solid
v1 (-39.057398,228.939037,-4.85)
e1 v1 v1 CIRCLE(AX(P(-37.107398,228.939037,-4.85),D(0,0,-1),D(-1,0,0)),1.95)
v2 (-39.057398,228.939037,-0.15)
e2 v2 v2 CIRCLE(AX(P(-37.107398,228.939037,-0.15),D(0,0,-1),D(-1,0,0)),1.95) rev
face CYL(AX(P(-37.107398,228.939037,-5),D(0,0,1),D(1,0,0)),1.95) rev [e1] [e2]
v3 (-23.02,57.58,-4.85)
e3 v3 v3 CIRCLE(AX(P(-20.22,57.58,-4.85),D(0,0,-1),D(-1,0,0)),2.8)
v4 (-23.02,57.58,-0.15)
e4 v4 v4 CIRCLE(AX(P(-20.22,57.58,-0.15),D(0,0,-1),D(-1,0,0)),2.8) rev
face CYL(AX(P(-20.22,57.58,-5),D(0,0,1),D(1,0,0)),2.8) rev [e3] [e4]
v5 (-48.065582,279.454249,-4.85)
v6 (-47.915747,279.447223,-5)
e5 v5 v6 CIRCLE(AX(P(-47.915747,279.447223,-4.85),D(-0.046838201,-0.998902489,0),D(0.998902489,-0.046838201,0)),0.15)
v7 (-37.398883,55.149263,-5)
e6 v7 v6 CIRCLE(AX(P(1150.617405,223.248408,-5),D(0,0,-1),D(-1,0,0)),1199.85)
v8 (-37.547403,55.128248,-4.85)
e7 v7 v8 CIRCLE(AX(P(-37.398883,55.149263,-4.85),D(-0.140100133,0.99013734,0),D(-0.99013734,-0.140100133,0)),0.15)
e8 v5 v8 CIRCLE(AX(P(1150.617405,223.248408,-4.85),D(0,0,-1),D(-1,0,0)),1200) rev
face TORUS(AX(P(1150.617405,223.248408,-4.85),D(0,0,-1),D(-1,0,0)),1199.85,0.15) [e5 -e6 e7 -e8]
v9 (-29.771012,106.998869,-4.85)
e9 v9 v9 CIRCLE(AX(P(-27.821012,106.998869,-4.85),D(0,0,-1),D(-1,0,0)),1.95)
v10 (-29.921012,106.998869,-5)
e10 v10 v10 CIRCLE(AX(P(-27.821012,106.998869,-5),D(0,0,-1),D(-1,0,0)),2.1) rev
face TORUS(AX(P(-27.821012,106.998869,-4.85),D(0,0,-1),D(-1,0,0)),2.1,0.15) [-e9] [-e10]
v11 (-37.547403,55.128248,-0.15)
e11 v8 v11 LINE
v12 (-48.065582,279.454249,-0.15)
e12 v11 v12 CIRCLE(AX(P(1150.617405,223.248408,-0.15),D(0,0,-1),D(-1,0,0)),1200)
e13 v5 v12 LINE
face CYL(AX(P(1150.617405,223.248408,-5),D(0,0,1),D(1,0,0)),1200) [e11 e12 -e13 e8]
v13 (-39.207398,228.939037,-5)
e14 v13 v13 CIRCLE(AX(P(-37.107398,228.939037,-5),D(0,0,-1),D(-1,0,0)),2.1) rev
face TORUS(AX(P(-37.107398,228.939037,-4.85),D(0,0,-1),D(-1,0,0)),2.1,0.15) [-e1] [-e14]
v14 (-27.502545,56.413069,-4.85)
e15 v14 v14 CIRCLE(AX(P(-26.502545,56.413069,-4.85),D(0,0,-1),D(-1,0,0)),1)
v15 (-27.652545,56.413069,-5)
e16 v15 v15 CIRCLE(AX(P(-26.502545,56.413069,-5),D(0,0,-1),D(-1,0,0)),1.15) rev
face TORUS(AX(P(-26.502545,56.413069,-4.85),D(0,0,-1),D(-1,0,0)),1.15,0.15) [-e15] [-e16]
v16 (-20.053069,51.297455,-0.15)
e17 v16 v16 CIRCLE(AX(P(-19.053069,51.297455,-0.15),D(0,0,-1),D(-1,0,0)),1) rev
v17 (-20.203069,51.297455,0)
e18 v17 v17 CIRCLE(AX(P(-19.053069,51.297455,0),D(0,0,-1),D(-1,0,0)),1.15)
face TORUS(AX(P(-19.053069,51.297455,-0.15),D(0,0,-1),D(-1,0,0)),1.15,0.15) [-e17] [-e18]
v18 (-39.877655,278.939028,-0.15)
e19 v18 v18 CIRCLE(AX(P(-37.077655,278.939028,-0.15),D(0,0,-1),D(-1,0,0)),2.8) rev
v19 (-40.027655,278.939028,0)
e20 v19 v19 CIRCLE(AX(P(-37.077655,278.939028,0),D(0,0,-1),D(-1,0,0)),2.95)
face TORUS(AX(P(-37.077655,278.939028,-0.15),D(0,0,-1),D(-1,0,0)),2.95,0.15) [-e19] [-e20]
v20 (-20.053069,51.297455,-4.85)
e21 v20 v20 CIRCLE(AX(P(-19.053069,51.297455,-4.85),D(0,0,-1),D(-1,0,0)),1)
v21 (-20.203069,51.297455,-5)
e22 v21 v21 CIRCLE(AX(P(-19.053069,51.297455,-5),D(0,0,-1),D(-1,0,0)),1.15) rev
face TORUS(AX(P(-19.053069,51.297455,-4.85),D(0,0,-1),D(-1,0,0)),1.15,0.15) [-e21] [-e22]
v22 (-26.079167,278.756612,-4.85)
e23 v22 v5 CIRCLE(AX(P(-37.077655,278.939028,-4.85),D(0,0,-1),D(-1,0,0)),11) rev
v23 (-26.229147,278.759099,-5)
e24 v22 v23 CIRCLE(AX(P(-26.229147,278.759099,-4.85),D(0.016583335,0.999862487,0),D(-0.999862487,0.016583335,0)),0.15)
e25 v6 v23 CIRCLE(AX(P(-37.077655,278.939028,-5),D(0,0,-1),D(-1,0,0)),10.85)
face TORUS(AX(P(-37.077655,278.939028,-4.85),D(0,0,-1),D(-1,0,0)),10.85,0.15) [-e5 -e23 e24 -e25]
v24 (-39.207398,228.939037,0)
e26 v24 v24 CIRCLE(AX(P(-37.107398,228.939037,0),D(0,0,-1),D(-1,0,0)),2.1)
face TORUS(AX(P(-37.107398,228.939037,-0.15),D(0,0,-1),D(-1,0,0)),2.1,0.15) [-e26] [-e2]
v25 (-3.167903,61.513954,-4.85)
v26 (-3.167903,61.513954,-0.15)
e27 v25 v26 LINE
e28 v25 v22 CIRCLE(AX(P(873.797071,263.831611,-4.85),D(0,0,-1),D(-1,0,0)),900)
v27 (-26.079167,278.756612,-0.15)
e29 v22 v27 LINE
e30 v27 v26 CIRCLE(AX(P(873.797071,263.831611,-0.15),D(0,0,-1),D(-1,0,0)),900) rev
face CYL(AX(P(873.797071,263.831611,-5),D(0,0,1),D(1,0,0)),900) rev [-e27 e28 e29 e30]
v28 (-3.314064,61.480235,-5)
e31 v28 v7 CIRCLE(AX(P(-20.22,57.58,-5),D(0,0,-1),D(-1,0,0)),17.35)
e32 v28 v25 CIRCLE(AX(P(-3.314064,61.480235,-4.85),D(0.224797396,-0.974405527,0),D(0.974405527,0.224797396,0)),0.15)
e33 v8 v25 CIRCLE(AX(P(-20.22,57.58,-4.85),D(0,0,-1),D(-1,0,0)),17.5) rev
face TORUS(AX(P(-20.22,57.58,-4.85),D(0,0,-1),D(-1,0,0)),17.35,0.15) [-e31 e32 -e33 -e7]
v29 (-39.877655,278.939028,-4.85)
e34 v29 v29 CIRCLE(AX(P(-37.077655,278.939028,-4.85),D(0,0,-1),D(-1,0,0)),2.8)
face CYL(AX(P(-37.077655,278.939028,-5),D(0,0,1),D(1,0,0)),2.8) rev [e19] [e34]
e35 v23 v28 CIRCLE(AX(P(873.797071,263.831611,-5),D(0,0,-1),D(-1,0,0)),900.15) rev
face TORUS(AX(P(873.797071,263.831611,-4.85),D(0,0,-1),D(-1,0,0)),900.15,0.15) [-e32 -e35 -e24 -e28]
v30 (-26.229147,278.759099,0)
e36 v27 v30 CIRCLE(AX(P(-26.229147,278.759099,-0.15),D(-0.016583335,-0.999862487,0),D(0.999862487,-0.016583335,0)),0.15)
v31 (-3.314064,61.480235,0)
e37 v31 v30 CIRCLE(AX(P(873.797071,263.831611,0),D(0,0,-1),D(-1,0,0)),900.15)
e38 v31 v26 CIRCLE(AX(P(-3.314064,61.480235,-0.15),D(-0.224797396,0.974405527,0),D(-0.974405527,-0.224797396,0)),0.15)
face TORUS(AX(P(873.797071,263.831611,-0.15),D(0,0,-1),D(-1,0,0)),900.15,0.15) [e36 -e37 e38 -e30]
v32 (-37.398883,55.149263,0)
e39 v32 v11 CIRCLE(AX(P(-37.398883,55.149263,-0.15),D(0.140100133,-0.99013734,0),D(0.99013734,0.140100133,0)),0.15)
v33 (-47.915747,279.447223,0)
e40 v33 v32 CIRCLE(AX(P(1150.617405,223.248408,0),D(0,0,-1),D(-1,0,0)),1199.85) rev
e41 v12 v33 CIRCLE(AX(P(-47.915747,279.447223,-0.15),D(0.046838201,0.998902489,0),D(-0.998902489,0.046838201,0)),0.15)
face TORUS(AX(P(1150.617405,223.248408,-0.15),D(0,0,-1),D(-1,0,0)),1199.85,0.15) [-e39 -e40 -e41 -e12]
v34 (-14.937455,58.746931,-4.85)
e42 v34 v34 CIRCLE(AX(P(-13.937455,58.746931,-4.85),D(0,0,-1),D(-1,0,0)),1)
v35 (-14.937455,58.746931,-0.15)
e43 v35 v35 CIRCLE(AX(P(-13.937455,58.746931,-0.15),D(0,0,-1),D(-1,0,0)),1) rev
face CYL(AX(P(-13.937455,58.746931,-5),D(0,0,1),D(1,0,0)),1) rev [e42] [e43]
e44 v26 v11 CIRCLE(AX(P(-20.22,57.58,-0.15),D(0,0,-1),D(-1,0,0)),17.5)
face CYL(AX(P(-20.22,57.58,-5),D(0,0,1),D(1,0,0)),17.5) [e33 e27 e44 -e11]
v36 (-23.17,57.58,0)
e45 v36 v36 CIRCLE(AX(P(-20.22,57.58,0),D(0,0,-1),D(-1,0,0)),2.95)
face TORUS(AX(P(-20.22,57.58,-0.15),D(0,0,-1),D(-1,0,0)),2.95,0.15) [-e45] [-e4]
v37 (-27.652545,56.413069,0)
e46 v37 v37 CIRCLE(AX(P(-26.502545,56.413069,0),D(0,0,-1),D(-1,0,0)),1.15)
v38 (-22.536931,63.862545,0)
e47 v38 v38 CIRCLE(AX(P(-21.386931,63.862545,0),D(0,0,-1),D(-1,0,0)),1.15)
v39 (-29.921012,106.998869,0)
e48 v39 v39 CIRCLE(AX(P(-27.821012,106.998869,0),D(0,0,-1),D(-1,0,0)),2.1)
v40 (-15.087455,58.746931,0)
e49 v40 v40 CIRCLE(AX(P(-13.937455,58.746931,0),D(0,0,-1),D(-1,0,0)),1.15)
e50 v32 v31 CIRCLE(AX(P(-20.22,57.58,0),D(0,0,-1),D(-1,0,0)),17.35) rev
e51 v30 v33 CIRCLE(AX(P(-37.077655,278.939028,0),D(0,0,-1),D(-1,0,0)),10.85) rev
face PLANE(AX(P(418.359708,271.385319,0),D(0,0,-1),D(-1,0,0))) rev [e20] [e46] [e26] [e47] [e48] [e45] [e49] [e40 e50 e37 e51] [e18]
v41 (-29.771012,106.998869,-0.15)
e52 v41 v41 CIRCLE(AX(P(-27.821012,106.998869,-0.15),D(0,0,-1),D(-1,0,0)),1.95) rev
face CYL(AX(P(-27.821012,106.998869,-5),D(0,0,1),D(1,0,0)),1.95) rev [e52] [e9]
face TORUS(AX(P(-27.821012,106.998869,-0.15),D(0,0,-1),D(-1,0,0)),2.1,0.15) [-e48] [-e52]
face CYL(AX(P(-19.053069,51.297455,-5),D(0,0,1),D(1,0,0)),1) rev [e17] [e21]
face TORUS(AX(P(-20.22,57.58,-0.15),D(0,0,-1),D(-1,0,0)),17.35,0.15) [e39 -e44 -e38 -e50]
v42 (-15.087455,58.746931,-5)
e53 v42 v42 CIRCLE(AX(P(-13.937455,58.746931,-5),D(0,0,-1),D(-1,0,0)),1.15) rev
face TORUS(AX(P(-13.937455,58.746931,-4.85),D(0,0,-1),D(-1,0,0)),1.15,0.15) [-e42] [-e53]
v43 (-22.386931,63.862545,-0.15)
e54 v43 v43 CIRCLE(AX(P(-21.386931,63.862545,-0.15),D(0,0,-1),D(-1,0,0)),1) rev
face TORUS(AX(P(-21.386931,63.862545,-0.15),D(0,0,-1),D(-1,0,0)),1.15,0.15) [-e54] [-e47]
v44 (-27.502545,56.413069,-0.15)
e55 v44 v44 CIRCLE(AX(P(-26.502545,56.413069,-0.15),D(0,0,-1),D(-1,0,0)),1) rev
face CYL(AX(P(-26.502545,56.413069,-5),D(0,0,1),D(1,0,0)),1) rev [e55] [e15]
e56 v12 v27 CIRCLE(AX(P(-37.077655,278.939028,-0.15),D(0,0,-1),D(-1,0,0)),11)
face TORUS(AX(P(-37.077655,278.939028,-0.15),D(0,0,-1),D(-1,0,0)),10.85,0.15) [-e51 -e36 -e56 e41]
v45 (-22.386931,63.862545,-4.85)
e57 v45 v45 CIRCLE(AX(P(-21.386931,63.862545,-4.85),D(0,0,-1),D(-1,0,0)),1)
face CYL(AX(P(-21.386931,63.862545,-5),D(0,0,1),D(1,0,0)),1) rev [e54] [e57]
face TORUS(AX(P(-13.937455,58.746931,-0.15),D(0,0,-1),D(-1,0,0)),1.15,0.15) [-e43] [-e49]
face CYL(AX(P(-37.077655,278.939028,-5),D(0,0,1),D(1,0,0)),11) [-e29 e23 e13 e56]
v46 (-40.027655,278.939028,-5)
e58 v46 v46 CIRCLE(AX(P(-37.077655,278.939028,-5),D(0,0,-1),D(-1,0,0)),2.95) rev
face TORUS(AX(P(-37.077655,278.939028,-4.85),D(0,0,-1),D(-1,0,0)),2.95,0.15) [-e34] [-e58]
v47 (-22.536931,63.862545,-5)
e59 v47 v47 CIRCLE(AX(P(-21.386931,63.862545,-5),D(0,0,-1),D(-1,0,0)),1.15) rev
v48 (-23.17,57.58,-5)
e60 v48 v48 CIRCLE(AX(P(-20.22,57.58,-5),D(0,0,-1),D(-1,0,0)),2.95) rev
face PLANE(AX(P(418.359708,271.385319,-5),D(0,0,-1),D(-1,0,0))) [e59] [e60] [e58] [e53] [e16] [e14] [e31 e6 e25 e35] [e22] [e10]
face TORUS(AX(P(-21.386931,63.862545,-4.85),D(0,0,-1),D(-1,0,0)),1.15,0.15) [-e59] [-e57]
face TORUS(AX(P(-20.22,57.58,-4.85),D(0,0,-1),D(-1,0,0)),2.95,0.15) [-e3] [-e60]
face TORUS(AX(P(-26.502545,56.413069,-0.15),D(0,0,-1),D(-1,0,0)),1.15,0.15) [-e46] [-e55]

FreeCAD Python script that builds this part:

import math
import FreeCAD as App
import Part
import Sketcher
from FreeCAD import Vector


def edges_at(feature, points):
    """Names of the edges that pass closest to the given points."""
    edges = feature.Shape.Edges
    near = lambda p: min(range(len(edges)), key=lambda i: edges[i].distToShape(Part.Vertex(*p))[0])
    return sorted({f"Edge{near(p) + 1}" for p in points})

doc = App.newDocument("Part")
body = doc.addObject("PartDesign::Body", "Body")

# Sketch on XY plane
sketch1 = body.newObject("Sketcher::SketchObject", "Sketch")
sketch1.AttachmentSupport = (doc.getObject("XY_Plane"), [""])
sketch1.MapMode = "FlatFace"
sketch1.addGeometry(Part.ArcOfCircle(Part.Circle(Vector(873.8, 263.8, 0), Vector(0, 0, 1), 900), math.radians(179.05), math.radians(192.99)), False)
sketch1.addGeometry(Part.ArcOfCircle(Part.Circle(Vector(-37.1, 278.9, 0), Vector(0, 0, 1), 11), math.radians(-1), math.radians(177)), False)
sketch1.addGeometry(Part.ArcOfCircle(Part.Circle(Vector(1150.6, 223.2, 0), Vector(0, 0, 1), 1200), math.radians(177.32), math.radians(188.05)), False)
sketch1.addGeometry(Part.ArcOfCircle(Part.Circle(Vector(-20.2, 57.6, 0), Vector(0, 0, 1), 17.5), math.radians(-172), math.radians(13)), False)
sketch1.addGeometry(Part.Circle(Vector(-13.9, 58.7, 0), Vector(0, 0, 1), 1), False)
sketch1.addGeometry(Part.Circle(Vector(-19.1, 51.3, 0), Vector(0, 0, 1), 1), False)
sketch1.addGeometry(Part.Circle(Vector(-20.2, 57.6, 0), Vector(0, 0, 1), 2.8), False)
sketch1.addGeometry(Part.Circle(Vector(-21.4, 63.9, 0), Vector(0, 0, 1), 1), False)
sketch1.addGeometry(Part.Circle(Vector(-26.5, 56.4, 0), Vector(0, 0, 1), 1), False)
sketch1.addGeometry(Part.Circle(Vector(-27.8, 107, 0), Vector(0, 0, 1), 1.9), False)
sketch1.addGeometry(Part.Circle(Vector(-37.1, 228.9, 0), Vector(0, 0, 1), 1.9), False)
sketch1.addGeometry(Part.Circle(Vector(-37.1, 278.9, 0), Vector(0, 0, 1), 2.8), False)
sketch1.addConstraint(Sketcher.Constraint("Tangent", 0, 1, 1, 1))
sketch1.addConstraint(Sketcher.Constraint("Tangent", 1, 2, 2, 1))
sketch1.addConstraint(Sketcher.Constraint("Tangent", 2, 2, 3, 1))
sketch1.addConstraint(Sketcher.Constraint("Tangent", 3, 2, 0, 2))
sketch1.addConstraint(Sketcher.Constraint("Coincident", 6, 3, 3, 3))
sketch1.addConstraint(Sketcher.Constraint("Coincident", 11, 3, 1, 3))
sketch1.addConstraint(Sketcher.Constraint("Equal", 4, 5))
sketch1.addConstraint(Sketcher.Constraint("Equal", 5, 7))
sketch1.addConstraint(Sketcher.Constraint("Equal", 7, 8))
sketch1.addConstraint(Sketcher.Constraint("Equal", 9, 10))
sketch1.addConstraint(Sketcher.Constraint("Equal", 6, 11))
sketch1.addConstraint(Sketcher.Constraint("Diameter", 4, 2.0))
sketch1.addConstraint(Sketcher.Constraint("Radius", 0, 900.0))
sketch1.addConstraint(Sketcher.Constraint("Radius", 1, 11.0))
sketch1.addConstraint(Sketcher.Constraint("Radius", 2, 1200.0))
sketch1.addConstraint(Sketcher.Constraint("Diameter", 6, 5.6))
sketch1.addConstraint(Sketcher.Constraint("Diameter", 9, 3.9))
sketch1.addConstraint(Sketcher.Constraint("Radius", 3, 17.5))
sketch1.addConstraint(Sketcher.Constraint("DistanceX", 3, 3, -1, 1, 20.22))
sketch1.addConstraint(Sketcher.Constraint("DistanceY", -1, 1, 3, 3, 57.58))
sketch1.addConstraint(Sketcher.Constraint("DistanceX", 1, 3, 4, 3, 23.1402))
sketch1.addConstraint(Sketcher.Constraint("DistanceY", 8, 3, 9, 3, 50.5858))
sketch1.addConstraint(Sketcher.Constraint("DistanceY", 5, 3, 3, 2, 10.2165))
sketch1.addConstraint(Sketcher.Constraint("DistanceX", -1, 1, 0, 3, 873.797071))
sketch1.addConstraint(Sketcher.Constraint("DistanceY", -1, 1, 1, 3, 278.939028))
sketch1.addConstraint(Sketcher.Constraint("DistanceY", -1, 1, 4, 3, 58.746931))
sketch1.addConstraint(Sketcher.Constraint("DistanceX", 5, 3, -1, 1, 19.053069))
sketch1.addConstraint(Sketcher.Constraint("DistanceX", 7, 3, -1, 1, 21.386931))
sketch1.addConstraint(Sketcher.Constraint("DistanceY", -1, 1, 8, 3, 56.413069))
sketch1.addConstraint(Sketcher.Constraint("DistanceY", 5, 3, 7, 3, 12.56509))
sketch1.addConstraint(Sketcher.Constraint("DistanceX", 8, 3, 4, 3, 12.56509))
sketch1.addConstraint(Sketcher.Constraint("DistanceX", 9, 3, 7, 3, 6.434082))
sketch1.addConstraint(Sketcher.Constraint("DistanceY", 10, 3, 1, 3, 49.999991))
sketch1.addConstraint(Sketcher.Constraint("DistanceX", 10, 3, 0, 1, 11.02823))
pad1 = body.newObject("PartDesign::Pad", "Pad")
pad1.Profile = sketch1
pad1.Length = 5
pad1.Reversed = True
doc.recompute()

fillet = body.newObject("PartDesign::Fillet", "Fillet")
fillet.Base = (pad1, edges_at(pad1, [
    (-23.02, 57.58, -5),
    (-23.02, 57.58, 0),
    (-17.024, 40.374, -5),
    (-39.878, 278.939, -5),
    (-39.878, 278.939, 0),
    (-21.239, 169.438, -5),
    (-29.771, 106.999, -5),
    (-29.771, 106.999, 0),
    (-39.057, 228.939, -5),
    (-39.057, 228.939, 0),
    (-20.053, 51.297, -5),
    (-20.053, 51.297, 0),
    (-27.503, 56.413, -5),
    (-27.503, 56.413, 0),
    (-22.387, 63.863, -5),
    (-22.387, 63.863, 0),
    (-14.937, 58.747, -5),
    (-14.937, 58.747, 0),
    (-36.729, 289.933, -5),
    (-21.239, 169.438, 0),
    (-17.024, 40.374, 0),
    (-48.066, 167.045, 0),
    (-36.729, 289.933, 0),
    (-48.066, 167.045, -5),
]))
fillet.Radius = 0.15

doc.recompute()
